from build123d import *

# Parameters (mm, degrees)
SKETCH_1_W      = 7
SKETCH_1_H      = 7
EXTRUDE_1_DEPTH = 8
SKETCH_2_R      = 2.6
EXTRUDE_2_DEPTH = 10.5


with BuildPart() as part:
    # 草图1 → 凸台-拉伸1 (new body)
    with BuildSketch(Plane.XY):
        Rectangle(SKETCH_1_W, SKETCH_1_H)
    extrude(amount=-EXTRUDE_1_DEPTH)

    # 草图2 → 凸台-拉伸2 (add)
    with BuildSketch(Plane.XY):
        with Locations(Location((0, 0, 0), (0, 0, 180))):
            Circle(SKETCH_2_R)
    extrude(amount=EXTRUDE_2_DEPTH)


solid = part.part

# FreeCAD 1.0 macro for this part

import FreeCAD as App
import Part
import Sketcher

V = App.Vector
Q = App.Units.Quantity

doc = App.newDocument("Part")
body = doc.addObject("PartDesign::Body", "Body")

sketch1 = doc.addObject("Sketcher::SketchObject", "Sketch")
body.addObject(sketch1)
sketch1.AttachmentSupport = (doc.XY_Plane, [""])
sketch1.MapMode = "FlatFace"
sketch1.addGeometry([
    Part.LineSegment(V(-3.5, 3.5, 0), V(-3.5, -3.5, 0)),
    Part.LineSegment(V(-3.5, -3.5, 0), V(3.5, -3.5, 0)),
    Part.LineSegment(V(3.5, -3.5, 0), V(3.5, 3.5, 0)),
    Part.LineSegment(V(3.5, 3.5, 0), V(-3.5, 3.5, 0)),
], False)
sketch1.addConstraint([
    Sketcher.Constraint("Coincident", 0, 2, 1, 1),
    Sketcher.Constraint("Coincident", 1, 2, 2, 1),
    Sketcher.Constraint("Coincident", 2, 2, 3, 1),
    Sketcher.Constraint("Coincident", 3, 2, 0, 1),
    Sketcher.Constraint("Vertical", 0),
    Sketcher.Constraint("Horizontal", 1),
    Sketcher.Constraint("Vertical", 2),
    Sketcher.Constraint("Horizontal", 3),
    Sketcher.Constraint("Symmetric", 0, 2, 2, 2, -1, 1),
    Sketcher.Constraint("Equal", 3, 0),
    Sketcher.Constraint("DistanceX", 1, 1, 1, 2, Q("7 mm")),
])
pad1 = doc.addObject("PartDesign::Pad", "Pad")
body.addObject(pad1)
pad1.Profile = sketch1
pad1.Length = 8
pad1.Reversed = True

sketch2 = doc.addObject("Sketcher::SketchObject", "Sketch001")
body.addObject(sketch2)
sketch2.AttachmentSupport = (doc.XY_Plane, [""])
sketch2.MapMode = "FlatFace"
sketch2.addGeometry(Part.Circle(V(0, 0, 0), V(0, 0, 1), 2.6), False)
sketch2.addConstraint([
    Sketcher.Constraint("Coincident", 0, 3, -1, 1),
    Sketcher.Constraint("Diameter", 0, Q("5.2 mm")),
])
pad2 = doc.addObject("PartDesign::Pad", "Pad001")
body.addObject(pad2)
pad2.Profile = sketch2
pad2.Length = 10.5

doc.recompute()
